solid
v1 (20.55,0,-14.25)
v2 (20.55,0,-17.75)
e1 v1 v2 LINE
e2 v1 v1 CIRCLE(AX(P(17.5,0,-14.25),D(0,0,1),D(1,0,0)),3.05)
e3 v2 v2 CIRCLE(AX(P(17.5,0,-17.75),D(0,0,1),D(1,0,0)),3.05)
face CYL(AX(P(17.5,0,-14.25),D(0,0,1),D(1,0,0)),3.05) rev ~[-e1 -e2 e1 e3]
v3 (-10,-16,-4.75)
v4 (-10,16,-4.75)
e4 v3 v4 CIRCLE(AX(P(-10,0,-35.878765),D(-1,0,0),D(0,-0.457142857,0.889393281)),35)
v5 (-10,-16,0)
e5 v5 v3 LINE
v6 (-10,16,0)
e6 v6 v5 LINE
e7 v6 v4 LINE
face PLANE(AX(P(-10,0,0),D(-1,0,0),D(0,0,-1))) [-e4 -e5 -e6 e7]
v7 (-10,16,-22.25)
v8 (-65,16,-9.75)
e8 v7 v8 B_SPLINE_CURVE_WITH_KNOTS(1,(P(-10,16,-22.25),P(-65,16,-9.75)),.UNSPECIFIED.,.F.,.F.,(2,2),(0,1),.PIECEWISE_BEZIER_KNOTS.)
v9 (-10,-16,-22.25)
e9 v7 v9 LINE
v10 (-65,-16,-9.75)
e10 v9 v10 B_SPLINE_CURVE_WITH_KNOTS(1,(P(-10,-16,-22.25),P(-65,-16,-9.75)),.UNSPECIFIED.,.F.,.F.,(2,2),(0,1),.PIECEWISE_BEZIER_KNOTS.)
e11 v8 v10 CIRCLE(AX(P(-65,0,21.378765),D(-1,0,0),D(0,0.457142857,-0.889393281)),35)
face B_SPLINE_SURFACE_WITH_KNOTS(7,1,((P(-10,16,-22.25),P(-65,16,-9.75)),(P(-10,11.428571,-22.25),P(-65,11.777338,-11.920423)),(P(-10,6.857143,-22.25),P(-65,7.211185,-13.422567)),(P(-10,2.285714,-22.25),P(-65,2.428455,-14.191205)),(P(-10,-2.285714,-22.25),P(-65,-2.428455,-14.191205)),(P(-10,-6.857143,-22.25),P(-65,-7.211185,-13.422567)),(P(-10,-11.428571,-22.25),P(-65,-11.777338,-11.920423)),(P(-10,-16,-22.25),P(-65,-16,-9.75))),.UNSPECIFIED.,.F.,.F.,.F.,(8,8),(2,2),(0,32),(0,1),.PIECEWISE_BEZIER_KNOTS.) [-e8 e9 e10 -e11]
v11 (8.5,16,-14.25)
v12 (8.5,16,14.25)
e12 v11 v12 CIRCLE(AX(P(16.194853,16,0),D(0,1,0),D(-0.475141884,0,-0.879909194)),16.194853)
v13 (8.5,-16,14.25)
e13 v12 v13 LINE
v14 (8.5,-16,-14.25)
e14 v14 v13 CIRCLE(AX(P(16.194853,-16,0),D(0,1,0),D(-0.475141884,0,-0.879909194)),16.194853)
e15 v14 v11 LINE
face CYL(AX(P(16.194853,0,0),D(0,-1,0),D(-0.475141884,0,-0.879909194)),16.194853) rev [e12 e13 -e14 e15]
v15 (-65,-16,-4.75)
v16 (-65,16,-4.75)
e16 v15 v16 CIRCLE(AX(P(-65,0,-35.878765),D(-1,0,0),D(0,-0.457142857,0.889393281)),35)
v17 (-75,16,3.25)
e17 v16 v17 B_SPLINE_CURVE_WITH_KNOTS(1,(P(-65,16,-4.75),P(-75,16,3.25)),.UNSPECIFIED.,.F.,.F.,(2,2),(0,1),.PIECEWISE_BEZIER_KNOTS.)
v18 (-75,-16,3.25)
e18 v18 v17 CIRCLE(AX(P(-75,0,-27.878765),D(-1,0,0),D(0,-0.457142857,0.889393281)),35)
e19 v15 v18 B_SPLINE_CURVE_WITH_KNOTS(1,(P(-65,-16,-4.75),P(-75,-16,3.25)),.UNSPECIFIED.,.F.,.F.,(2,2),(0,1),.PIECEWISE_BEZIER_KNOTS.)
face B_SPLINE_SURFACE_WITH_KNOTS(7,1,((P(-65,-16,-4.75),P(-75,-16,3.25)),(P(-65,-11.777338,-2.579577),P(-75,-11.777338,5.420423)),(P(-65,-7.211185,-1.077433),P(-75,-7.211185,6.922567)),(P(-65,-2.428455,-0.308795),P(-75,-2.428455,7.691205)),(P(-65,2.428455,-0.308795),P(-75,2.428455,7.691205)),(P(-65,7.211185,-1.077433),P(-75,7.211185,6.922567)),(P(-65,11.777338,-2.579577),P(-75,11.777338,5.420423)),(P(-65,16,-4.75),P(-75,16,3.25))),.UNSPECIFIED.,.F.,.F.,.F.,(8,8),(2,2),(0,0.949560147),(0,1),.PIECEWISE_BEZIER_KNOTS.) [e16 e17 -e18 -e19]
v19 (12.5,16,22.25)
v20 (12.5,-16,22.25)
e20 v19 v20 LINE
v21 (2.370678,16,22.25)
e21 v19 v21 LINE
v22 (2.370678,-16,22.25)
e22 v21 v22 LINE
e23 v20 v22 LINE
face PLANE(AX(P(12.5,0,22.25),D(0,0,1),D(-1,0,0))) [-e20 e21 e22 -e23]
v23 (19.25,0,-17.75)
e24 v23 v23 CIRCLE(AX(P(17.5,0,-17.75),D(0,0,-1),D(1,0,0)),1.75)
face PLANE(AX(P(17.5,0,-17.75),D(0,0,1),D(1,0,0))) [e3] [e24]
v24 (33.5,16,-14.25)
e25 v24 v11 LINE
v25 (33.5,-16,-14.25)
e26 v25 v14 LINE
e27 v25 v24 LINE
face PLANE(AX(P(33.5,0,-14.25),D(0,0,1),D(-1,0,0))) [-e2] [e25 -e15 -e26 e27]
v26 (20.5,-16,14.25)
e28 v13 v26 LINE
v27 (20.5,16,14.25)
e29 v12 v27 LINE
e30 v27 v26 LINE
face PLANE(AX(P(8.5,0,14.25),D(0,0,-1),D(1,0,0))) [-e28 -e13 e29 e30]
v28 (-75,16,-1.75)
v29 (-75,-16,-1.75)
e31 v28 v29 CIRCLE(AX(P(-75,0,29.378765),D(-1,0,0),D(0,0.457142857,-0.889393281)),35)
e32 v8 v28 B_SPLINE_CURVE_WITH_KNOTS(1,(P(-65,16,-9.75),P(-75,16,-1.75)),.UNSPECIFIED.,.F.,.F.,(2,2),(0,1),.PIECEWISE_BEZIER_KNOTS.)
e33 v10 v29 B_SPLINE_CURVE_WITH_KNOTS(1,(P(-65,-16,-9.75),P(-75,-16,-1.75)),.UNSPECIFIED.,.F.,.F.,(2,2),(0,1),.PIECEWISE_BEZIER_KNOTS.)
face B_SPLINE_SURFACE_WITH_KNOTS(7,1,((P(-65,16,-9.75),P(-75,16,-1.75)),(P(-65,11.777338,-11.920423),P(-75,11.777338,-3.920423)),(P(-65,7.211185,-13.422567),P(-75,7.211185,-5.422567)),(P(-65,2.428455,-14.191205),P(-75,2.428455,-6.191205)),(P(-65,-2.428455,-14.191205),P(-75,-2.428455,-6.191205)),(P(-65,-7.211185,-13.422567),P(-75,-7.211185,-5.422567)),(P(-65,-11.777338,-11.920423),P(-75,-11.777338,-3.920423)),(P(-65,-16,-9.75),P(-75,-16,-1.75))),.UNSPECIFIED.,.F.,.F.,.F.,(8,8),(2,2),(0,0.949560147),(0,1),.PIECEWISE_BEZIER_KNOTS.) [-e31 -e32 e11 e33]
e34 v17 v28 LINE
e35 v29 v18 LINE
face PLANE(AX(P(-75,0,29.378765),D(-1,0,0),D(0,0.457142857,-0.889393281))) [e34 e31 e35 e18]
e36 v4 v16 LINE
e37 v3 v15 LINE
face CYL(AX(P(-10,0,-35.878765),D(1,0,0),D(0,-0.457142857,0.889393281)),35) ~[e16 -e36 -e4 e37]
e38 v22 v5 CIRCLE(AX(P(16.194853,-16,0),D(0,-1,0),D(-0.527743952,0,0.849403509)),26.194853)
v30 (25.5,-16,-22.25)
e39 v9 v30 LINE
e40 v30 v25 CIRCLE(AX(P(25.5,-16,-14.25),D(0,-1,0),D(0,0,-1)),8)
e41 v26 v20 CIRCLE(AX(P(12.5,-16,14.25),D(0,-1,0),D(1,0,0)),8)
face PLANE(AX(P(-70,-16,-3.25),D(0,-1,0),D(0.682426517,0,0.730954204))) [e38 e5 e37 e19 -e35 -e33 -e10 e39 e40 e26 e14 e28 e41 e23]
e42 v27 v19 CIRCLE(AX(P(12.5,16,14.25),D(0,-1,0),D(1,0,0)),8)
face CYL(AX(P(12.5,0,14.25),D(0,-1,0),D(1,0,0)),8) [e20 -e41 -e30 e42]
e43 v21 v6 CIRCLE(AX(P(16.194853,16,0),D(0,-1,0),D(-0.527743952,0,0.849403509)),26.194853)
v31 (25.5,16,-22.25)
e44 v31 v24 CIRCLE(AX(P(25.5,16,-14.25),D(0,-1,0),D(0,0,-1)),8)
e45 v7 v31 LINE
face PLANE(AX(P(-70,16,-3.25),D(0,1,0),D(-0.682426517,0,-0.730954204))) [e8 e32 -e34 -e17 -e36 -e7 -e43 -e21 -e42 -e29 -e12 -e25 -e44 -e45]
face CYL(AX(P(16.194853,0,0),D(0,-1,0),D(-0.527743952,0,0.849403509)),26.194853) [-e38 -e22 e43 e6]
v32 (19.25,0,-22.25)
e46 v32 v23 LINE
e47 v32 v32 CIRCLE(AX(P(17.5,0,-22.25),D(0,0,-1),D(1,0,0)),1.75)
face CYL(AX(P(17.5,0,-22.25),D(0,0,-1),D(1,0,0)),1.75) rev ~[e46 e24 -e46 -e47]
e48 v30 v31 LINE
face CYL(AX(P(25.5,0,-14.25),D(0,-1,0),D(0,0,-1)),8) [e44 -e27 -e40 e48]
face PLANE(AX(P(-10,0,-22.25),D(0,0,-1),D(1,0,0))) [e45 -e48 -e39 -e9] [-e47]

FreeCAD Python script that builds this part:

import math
import FreeCAD as App
import Part
import Sketcher

V = App.Vector
Q = App.Units.Quantity

doc = App.newDocument("Part")
params = doc.addObject("Spreadsheet::Sheet", "Params")
for row, (alias, value) in enumerate([
    ("sketch1_radius", "8 mm"),
    ("sketch1_width", "12 mm"),
    ("sketch1_width2", "25 mm"),
    ("sketch1_width3", "35.5 mm"),
    ("sketch1_height", "22.25 mm"),
    ("pad1_length", "16 mm"),
    ("pad1_length2", "16 mm"),
    ("sketch2_radius", "35 mm"),
    ("sketch2_height", "5 mm"),
    ("pad2_length", "55 mm"),
    ("sketch3_radius", "35 mm"),
    ("sketch3_width", "32 mm"),
    ("sketch3_height", "12.5 mm"),
    ("sketch4_radius", "35 mm"),
    ("sketch4_height", "5 mm"),
    ("sketch5_radius", "35 mm"),
    ("sketch5_height", "5 mm"),
    ("sketch6_radius", "35 mm"),
    ("sketch6_height", "5 mm"),
    ("sketch7_diameter", "3.5 mm"),
    ("pocket1_length", "25 mm"),
    ("sketch8_diameter", "6.1 mm"),
    ("pocket2_length", "3.5 mm"),
], start=1):
    params.set(f"A{row}", alias)
    params.set(f"B{row}", "=" + value)
    params.setAlias(f"B{row}", alias)

body = doc.addObject("PartDesign::Body", "Body")

# Sketch on XZ plane
sketch1 = body.newObject("Sketcher::SketchObject", "Sketch")
sketch1.AttachmentSupport = (doc.getObject("XZ_Plane"), [""])
sketch1.MapMode = "FlatFace"
sketch1.addGeometry(Part.ArcOfCircle(Part.Circle(V(16.194853, 0, 0), V(0, 0, 1), 16.194853), math.radians(118.368588), math.radians(241.631412)), False)
sketch1.addGeometry(Part.LineSegment(V(8.5, 14.25, 0), V(20.5, 14.25, 0)), False)
sketch1.addGeometry(Part.ArcOfCircle(Part.Circle(V(12.5, 14.25, 0), V(0, 0, 1), 8), math.radians(0), math.radians(90)), False)
sketch1.addGeometry(Part.LineSegment(V(12.5, 22.25, 0), V(2.370678, 22.25, 0)), False)
sketch1.addGeometry(Part.ArcOfCircle(Part.Circle(V(16.194853, 0, 0), V(0, 0, 1), 26.194853), math.radians(121.853149), math.radians(180)), False)
sketch1.addGeometry(Part.LineSegment(V(-10, 0, 0), V(-10, -22.25, 0)), False)
sketch1.addGeometry(Part.LineSegment(V(-10, -22.25, 0), V(25.5, -22.25, 0)), False)
sketch1.addGeometry(Part.ArcOfCircle(Part.Circle(V(25.5, -14.25, 0), V(0, 0, 1), 8), math.radians(-90), math.radians(0)), False)
sketch1.addGeometry(Part.LineSegment(V(33.5, -14.25, 0), V(8.5, -14.25, 0)), False)
sketch1.addConstraint(Sketcher.Constraint("Coincident", 0, 1, 1, 1))
sketch1.addConstraint(Sketcher.Constraint("Coincident", 1, 2, 2, 1))
sketch1.addConstraint(Sketcher.Constraint("Tangent", 2, 2, 3, 1))
sketch1.addConstraint(Sketcher.Constraint("Coincident", 3, 2, 4, 1))
sketch1.addConstraint(Sketcher.Constraint("Tangent", 4, 2, 5, 1))
sketch1.addConstraint(Sketcher.Constraint("Coincident", 5, 2, 6, 1))
sketch1.addConstraint(Sketcher.Constraint("Tangent", 6, 2, 7, 1))
sketch1.addConstraint(Sketcher.Constraint("Coincident", 7, 2, 8, 1))
sketch1.addConstraint(Sketcher.Constraint("Coincident", 8, 2, 0, 2))
sketch1.addConstraint(Sketcher.Constraint("Horizontal", 1))
sketch1.addConstraint(Sketcher.Constraint("Horizontal", 3))
sketch1.addConstraint(Sketcher.Constraint("Vertical", 5))
sketch1.addConstraint(Sketcher.Constraint("Horizontal", 6))
sketch1.addConstraint(Sketcher.Constraint("Horizontal", 8))
sketch1.addConstraint(Sketcher.Constraint("Coincident", 4, 3, 0, 3))
sketch1.addConstraint(Sketcher.Constraint("Equal", 2, 7))
sketch1.addConstraint(Sketcher.Constraint("Symmetric", 0, 1, 8, 2, -1))
sketch1.addConstraint(Sketcher.Constraint("Horizontal", 2, 3, 0, 1))
sketch1.addConstraint(Sketcher.Constraint("Radius", 2, Q("8 mm")))
sketch1.addConstraint(Sketcher.Constraint("DistanceX", 1, 1, 1, 2, Q("12 mm")))
sketch1.addConstraint(Sketcher.Constraint("DistanceX", 8, 2, 8, 1, Q("25 mm")))
sketch1.addConstraint(Sketcher.Constraint("DistanceX", 6, 1, 6, 2, Q("35.5 mm")))
sketch1.addConstraint(Sketcher.Constraint("DistanceX", 4, 2, -1, 1, Q("10 mm")))
sketch1.addConstraint(Sketcher.Constraint("DistanceY", 6, 2, 7, 2, Q("8 mm")))
sketch1.addConstraint(Sketcher.Constraint("DistanceY", 5, 2, 5, 1, Q("22.25 mm")))
sketch1.addConstraint(Sketcher.Constraint("Radius", 0, Q("16.194853 mm")))
sketch1.setExpression("Constraints[18]", "Params.sketch1_radius")
sketch1.setExpression("Constraints[19]", "Params.sketch1_width")
sketch1.setExpression("Constraints[20]", "Params.sketch1_width2")
sketch1.setExpression("Constraints[21]", "Params.sketch1_width3")
sketch1.setExpression("Constraints[24]", "Params.sketch1_height")
pad1 = body.newObject("PartDesign::Pad", "Pad")
pad1.Profile = sketch1
pad1.Type = "TwoLengths"
pad1.setExpression("Length", "Params.pad1_length")
pad1.setExpression("Length2", "Params.pad1_length2")

# Sketch on YZ plane
sketch2 = body.newObject("Sketcher::SketchObject", "Sketch001")
sketch2.AttachmentSupport = (doc.getObject("YZ_Plane"), [""])
sketch2.MapMode = "FlatFace"
sketch2.AttachmentOffset = App.Placement(V(0, 0, -10), App.Rotation())
sketch2.addGeometry(Part.LineSegment(V(-16, -9.75, 0), V(-16, -4.75, 0)), False)
sketch2.addGeometry(Part.ArcOfCircle(Part.Circle(V(0, -35.878765, 0), V(0, 0, 1), 35), math.radians(62.797106), math.radians(117.202894)), False)
sketch2.addGeometry(Part.LineSegment(V(16, -4.75, 0), V(16, -9.75, 0)), False)
sketch2.addGeometry(Part.ArcOfCircle(Part.Circle(V(0, 21.378765, 0), V(0, 0, 1), 35), math.radians(-117.202894), math.radians(-62.797106)), False)
sketch2.addConstraint(Sketcher.Constraint("Coincident", 0, 2, 1, 2))
sketch2.addConstraint(Sketcher.Constraint("Coincident", 1, 1, 2, 1))
sketch2.addConstraint(Sketcher.Constraint("Coincident", 2, 2, 3, 2))
sketch2.addConstraint(Sketcher.Constraint("Coincident", 3, 1, 0, 1))
sketch2.addConstraint(Sketcher.Constraint("Vertical", 0))
sketch2.addConstraint(Sketcher.Constraint("Vertical", 2))
sketch2.addConstraint(Sketcher.Constraint("Equal", 1, 3))
sketch2.addConstraint(Sketcher.Constraint("Symmetric", 0, 2, 1, 1, -2))
sketch2.addConstraint(Sketcher.Constraint("PointOnObject", 3, 3, -2))
sketch2.addConstraint(Sketcher.Constraint("Radius", 1, Q("35 mm")))
sketch2.addConstraint(Sketcher.Constraint("DistanceY", 0, 1, 0, 2, Q("5 mm")))
sketch2.addConstraint(Sketcher.Constraint("DistanceX", 0, 2, -1, 1, Q("16 mm")))
sketch2.addConstraint(Sketcher.Constraint("DistanceY", 0, 2, -1, 1, Q("4.75 mm")))
sketch2.setExpression("Constraints[9]", "Params.sketch2_radius")
sketch2.setExpression("Constraints[10]", "Params.sketch2_height")
pad2 = body.newObject("PartDesign::Pad", "Pad001")
pad2.Profile = sketch2
pad2.setExpression("Length", "Params.pad2_length")
pad2.Reversed = True

# Sketch on YZ plane
sketch3 = body.newObject("Sketcher::SketchObject", "Sketch002")
sketch3.AttachmentSupport = (doc.getObject("YZ_Plane"), [""])
sketch3.MapMode = "FlatFace"
sketch3.AttachmentOffset = App.Placement(V(0, 0, -10), App.Rotation())
sketch3.addGeometry(Part.ArcOfCircle(Part.Circle(V(0, 21.378765, 0), V(0, 0, 1), 35), math.radians(-117.202894), math.radians(-62.797106)), False)
sketch3.addGeometry(Part.LineSegment(V(16, -9.75, 0), V(16, -22.25, 0)), False)
sketch3.addGeometry(Part.LineSegment(V(16, -22.25, 0), V(-16, -22.25, 0)), False)
sketch3.addGeometry(Part.LineSegment(V(-16, -22.25, 0), V(-16, -9.75, 0)), False)
sketch3.addConstraint(Sketcher.Constraint("Coincident", 0, 2, 1, 1))
sketch3.addConstraint(Sketcher.Constraint("Coincident", 1, 2, 2, 1))
sketch3.addConstraint(Sketcher.Constraint("Coincident", 2, 2, 3, 1))
sketch3.addConstraint(Sketcher.Constraint("Coincident", 3, 2, 0, 1))
sketch3.addConstraint(Sketcher.Constraint("Vertical", 1))
sketch3.addConstraint(Sketcher.Constraint("Horizontal", 2))
sketch3.addConstraint(Sketcher.Constraint("Vertical", 3))
sketch3.addConstraint(Sketcher.Constraint("Symmetric", 0, 2, 3, 2, -2))
sketch3.addConstraint(Sketcher.Constraint("Radius", 0, Q("35 mm")))
sketch3.addConstraint(Sketcher.Constraint("DistanceX", 2, 2, 2, 1, Q("32 mm")))
sketch3.addConstraint(Sketcher.Constraint("DistanceY", 1, 2, 1, 1, Q("12.5 mm")))
sketch3.addConstraint(Sketcher.Constraint("DistanceY", 0, 2, -1, 1, Q("9.75 mm")))
sketch3.setExpression("Constraints[8]", "Params.sketch3_radius")
sketch3.setExpression("Constraints[9]", "Params.sketch3_width")
sketch3.setExpression("Constraints[10]", "Params.sketch3_height")

# Sketch on YZ plane
sketch4 = body.newObject("Sketcher::SketchObject", "Sketch003")
sketch4.AttachmentSupport = (doc.getObject("YZ_Plane"), [""])
sketch4.MapMode = "FlatFace"
sketch4.AttachmentOffset = App.Placement(V(0, 0, -65), App.Rotation())
sketch4.addGeometry(Part.LineSegment(V(16, -4.75, 0), V(16, -9.75, 0)), False)
sketch4.addGeometry(Part.ArcOfCircle(Part.Circle(V(0, 21.378765, 0), V(0, 0, 1), 35), math.radians(-117.202894), math.radians(-62.797106)), False)
sketch4.addGeometry(Part.LineSegment(V(-16, -9.75, 0), V(-16, -4.75, 0)), False)
sketch4.addGeometry(Part.ArcOfCircle(Part.Circle(V(0, -35.878765, 0), V(0, 0, 1), 35), math.radians(62.797106), math.radians(117.202894)), False)
sketch4.addConstraint(Sketcher.Constraint("Coincident", 0, 2, 1, 2))
sketch4.addConstraint(Sketcher.Constraint("Coincident", 1, 1, 2, 1))
sketch4.addConstraint(Sketcher.Constraint("Coincident", 2, 2, 3, 2))
sketch4.addConstraint(Sketcher.Constraint("Coincident", 3, 1, 0, 1))
sketch4.addConstraint(Sketcher.Constraint("Vertical", 0))
sketch4.addConstraint(Sketcher.Constraint("Vertical", 2))
sketch4.addConstraint(Sketcher.Constraint("Equal", 1, 3))
sketch4.addConstraint(Sketcher.Constraint("Symmetric", 0, 2, 1, 1, -2))
sketch4.addConstraint(Sketcher.Constraint("PointOnObject", 3, 3, -2))
sketch4.addConstraint(Sketcher.Constraint("Radius", 1, Q("35 mm")))
sketch4.addConstraint(Sketcher.Constraint("DistanceY", 0, 2, 0, 1, Q("5 mm")))
sketch4.addConstraint(Sketcher.Constraint("DistanceX", -1, 1, 0, 2, Q("16 mm")))
sketch4.addConstraint(Sketcher.Constraint("DistanceY", 0, 2, -1, 1, Q("9.75 mm")))
sketch4.setExpression("Constraints[9]", "Params.sketch4_radius")
sketch4.setExpression("Constraints[10]", "Params.sketch4_height")

additiveloft = body.newObject("PartDesign::AdditiveLoft", "AdditiveLoft")
additiveloft.Profile = sketch3
additiveloft.Sections = [sketch4]

# Sketch on YZ plane
sketch5 = body.newObject("Sketcher::SketchObject", "Sketch004")
sketch5.AttachmentSupport = (doc.getObject("YZ_Plane"), [""])
sketch5.MapMode = "FlatFace"
sketch5.AttachmentOffset = App.Placement(V(0, 0, -65), App.Rotation())
sketch5.addGeometry(Part.LineSegment(V(16, -4.75, 0), V(16, -9.75, 0)), False)
sketch5.addGeometry(Part.ArcOfCircle(Part.Circle(V(0, 21.378765, 0), V(0, 0, 1), 35), math.radians(-117.202894), math.radians(-62.797106)), False)
sketch5.addGeometry(Part.LineSegment(V(-16, -9.75, 0), V(-16, -4.75, 0)), False)
sketch5.addGeometry(Part.ArcOfCircle(Part.Circle(V(0, -35.878765, 0), V(0, 0, 1), 35), math.radians(62.797106), math.radians(117.202894)), False)
sketch5.addConstraint(Sketcher.Constraint("Coincident", 0, 2, 1, 2))
sketch5.addConstraint(Sketcher.Constraint("Coincident", 1, 1, 2, 1))
sketch5.addConstraint(Sketcher.Constraint("Coincident", 2, 2, 3, 2))
sketch5.addConstraint(Sketcher.Constraint("Coincident", 3, 1, 0, 1))
sketch5.addConstraint(Sketcher.Constraint("Vertical", 0))
sketch5.addConstraint(Sketcher.Constraint("Vertical", 2))
sketch5.addConstraint(Sketcher.Constraint("Equal", 1, 3))
sketch5.addConstraint(Sketcher.Constraint("Symmetric", 0, 2, 1, 1, -2))
sketch5.addConstraint(Sketcher.Constraint("PointOnObject", 3, 3, -2))
sketch5.addConstraint(Sketcher.Constraint("Radius", 1, Q("35 mm")))
sketch5.addConstraint(Sketcher.Constraint("DistanceY", 0, 2, 0, 1, Q("5 mm")))
sketch5.addConstraint(Sketcher.Constraint("DistanceX", -1, 1, 0, 2, Q("16 mm")))
sketch5.addConstraint(Sketcher.Constraint("DistanceY", 0, 2, -1, 1, Q("9.75 mm")))
sketch5.setExpression("Constraints[9]", "Params.sketch5_radius")
sketch5.setExpression("Constraints[10]", "Params.sketch5_height")

# Sketch on YZ plane
sketch6 = body.newObject("Sketcher::SketchObject", "Sketch005")
sketch6.AttachmentSupport = (doc.getObject("YZ_Plane"), [""])
sketch6.MapMode = "FlatFace"
sketch6.AttachmentOffset = App.Placement(V(0, 0, -75), App.Rotation())
sketch6.addGeometry(Part.ArcOfCircle(Part.Circle(V(0, 29.378765, 0), V(0, 0, 1), 35), math.radians(-117.202894), math.radians(-62.797106)), False)
sketch6.addGeometry(Part.LineSegment(V(-16, -1.75, 0), V(-16, 3.25, 0)), False)
sketch6.addGeometry(Part.ArcOfCircle(Part.Circle(V(0, -27.878765, 0), V(0, 0, 1), 35), math.radians(62.797106), math.radians(117.202894)), False)
sketch6.addGeometry(Part.LineSegment(V(16, 3.25, 0), V(16, -1.75, 0)), False)
sketch6.addConstraint(Sketcher.Constraint("Coincident", 0, 1, 1, 1))
sketch6.addConstraint(Sketcher.Constraint("Coincident", 1, 2, 2, 2))
sketch6.addConstraint(Sketcher.Constraint("Coincident", 2, 1, 3, 1))
sketch6.addConstraint(Sketcher.Constraint("Coincident", 3, 2, 0, 2))
sketch6.addConstraint(Sketcher.Constraint("Vertical", 1))
sketch6.addConstraint(Sketcher.Constraint("Vertical", 3))
sketch6.addConstraint(Sketcher.Constraint("Equal", 0, 2))
sketch6.addConstraint(Sketcher.Constraint("Symmetric", 1, 2, 2, 1, -2))
sketch6.addConstraint(Sketcher.Constraint("PointOnObject", 0, 3, -2))
sketch6.addConstraint(Sketcher.Constraint("Radius", 0, Q("35 mm")))
sketch6.addConstraint(Sketcher.Constraint("DistanceY", 1, 1, 1, 2, Q("5 mm")))
sketch6.addConstraint(Sketcher.Constraint("DistanceX", 0, 1, -1, 1, Q("16 mm")))
sketch6.addConstraint(Sketcher.Constraint("DistanceY", 0, 1, -1, 1, Q("1.75 mm")))
sketch6.setExpression("Constraints[9]", "Params.sketch6_radius")
sketch6.setExpression("Constraints[10]", "Params.sketch6_height")

additiveloft2 = body.newObject("PartDesign::AdditiveLoft", "AdditiveLoft001")
additiveloft2.Profile = sketch5
additiveloft2.Sections = [sketch6]

# Sketch on XY plane
sketch7 = body.newObject("Sketcher::SketchObject", "Sketch006")
sketch7.AttachmentSupport = (doc.getObject("XY_Plane"), [""])
sketch7.MapMode = "FlatFace"
sketch7.AttachmentOffset = App.Placement(V(0, 0, -22.25), App.Rotation())
sketch7.addGeometry(Part.Circle(V(17.5, 0, 0), V(0, 0, 1), 1.75), False)
sketch7.addConstraint(Sketcher.Constraint("PointOnObject", 0, 3, -1))
sketch7.addConstraint(Sketcher.Constraint("Diameter", 0, Q("3.5 mm")))
sketch7.addConstraint(Sketcher.Constraint("DistanceX", -1, 1, 0, 3, Q("17.5 mm")))
sketch7.setExpression("Constraints[1]", "Params.sketch7_diameter")
pocket1 = body.newObject("PartDesign::Pocket", "Pocket")
pocket1.Profile = sketch7
pocket1.setExpression("Length", "Params.pocket1_length")
pocket1.Reversed = True

# Sketch on XY plane
sketch8 = body.newObject("Sketcher::SketchObject", "Sketch007")
sketch8.AttachmentSupport = (doc.getObject("XY_Plane"), [""])
sketch8.MapMode = "FlatFace"
sketch8.AttachmentOffset = App.Placement(V(0, 0, -14.25), App.Rotation())
sketch8.addGeometry(Part.Circle(V(17.5, 0, 0), V(0, 0, 1), 3.05), False)
sketch8.addConstraint(Sketcher.Constraint("PointOnObject", 0, 3, -1))
sketch8.addConstraint(Sketcher.Constraint("Diameter", 0, Q("6.1 mm")))
sketch8.addConstraint(Sketcher.Constraint("DistanceX", -1, 1, 0, 3, Q("17.5 mm")))
sketch8.setExpression("Constraints[1]", "Params.sketch8_diameter")
pocket2 = body.newObject("PartDesign::Pocket", "Pocket001")
pocket2.Profile = sketch8
pocket2.setExpression("Length", "Params.pocket2_length")

doc.recompute()
